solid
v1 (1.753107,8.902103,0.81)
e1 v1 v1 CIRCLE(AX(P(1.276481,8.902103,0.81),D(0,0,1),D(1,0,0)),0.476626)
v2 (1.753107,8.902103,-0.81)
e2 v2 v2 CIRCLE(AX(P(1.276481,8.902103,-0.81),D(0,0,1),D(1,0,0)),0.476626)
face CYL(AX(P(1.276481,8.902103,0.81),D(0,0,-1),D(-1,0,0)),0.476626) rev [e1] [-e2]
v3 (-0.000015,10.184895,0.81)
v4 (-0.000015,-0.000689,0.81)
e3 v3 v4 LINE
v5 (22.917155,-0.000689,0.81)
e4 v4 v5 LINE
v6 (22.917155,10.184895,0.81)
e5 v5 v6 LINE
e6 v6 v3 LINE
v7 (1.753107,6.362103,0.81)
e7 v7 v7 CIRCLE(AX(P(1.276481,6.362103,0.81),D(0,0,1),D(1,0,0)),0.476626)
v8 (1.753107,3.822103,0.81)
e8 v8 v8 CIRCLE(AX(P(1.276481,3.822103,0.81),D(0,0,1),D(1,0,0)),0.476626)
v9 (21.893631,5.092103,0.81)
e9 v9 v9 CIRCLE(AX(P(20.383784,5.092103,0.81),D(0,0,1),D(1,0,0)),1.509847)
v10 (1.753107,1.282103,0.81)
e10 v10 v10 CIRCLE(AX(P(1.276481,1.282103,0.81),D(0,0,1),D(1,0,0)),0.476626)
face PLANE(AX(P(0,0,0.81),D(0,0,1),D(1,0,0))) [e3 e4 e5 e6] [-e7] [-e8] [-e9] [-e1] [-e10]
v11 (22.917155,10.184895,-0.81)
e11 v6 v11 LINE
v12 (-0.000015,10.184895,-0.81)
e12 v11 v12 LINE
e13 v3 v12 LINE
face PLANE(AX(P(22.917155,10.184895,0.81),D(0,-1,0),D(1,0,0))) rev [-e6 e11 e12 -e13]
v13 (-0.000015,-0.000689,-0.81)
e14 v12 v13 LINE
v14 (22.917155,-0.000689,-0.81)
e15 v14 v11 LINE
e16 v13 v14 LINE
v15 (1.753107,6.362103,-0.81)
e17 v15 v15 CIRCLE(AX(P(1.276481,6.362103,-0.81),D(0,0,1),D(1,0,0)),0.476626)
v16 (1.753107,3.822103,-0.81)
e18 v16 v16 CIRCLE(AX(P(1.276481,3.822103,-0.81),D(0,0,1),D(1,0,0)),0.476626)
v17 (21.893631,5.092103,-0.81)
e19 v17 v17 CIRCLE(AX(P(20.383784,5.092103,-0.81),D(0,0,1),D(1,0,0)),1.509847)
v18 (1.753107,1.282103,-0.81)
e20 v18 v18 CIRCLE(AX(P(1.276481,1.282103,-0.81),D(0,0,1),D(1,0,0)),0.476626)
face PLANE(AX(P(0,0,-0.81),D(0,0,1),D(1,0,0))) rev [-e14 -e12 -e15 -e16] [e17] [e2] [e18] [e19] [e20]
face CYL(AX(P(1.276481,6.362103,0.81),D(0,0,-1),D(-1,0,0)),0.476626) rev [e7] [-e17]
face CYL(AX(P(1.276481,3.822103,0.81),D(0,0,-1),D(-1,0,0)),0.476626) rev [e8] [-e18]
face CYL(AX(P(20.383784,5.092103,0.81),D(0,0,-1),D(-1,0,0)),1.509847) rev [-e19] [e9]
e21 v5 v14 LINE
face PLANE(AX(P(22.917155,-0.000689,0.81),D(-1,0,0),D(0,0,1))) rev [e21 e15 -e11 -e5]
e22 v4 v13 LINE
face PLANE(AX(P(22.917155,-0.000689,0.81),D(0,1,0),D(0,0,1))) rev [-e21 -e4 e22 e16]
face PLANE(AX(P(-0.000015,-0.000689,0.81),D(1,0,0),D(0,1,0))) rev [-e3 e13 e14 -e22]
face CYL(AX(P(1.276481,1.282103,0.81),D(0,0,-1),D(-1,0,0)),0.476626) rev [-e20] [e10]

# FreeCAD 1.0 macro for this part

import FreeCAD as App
import Part
import Sketcher


def add_polygon(sketch, points):
    """Adds a closed chain of lines whose ends are joined by coincident constraints."""
    first, n = sketch.GeometryCount, len(points)
    for a, b in zip(points, points[1:] + points[:1]):
        sketch.addGeometry(Part.LineSegment(App.Vector(*a, 0), App.Vector(*b, 0)), False)
    for i in range(n):
        sketch.addConstraint(Sketcher.Constraint("Coincident", first + i, 2, first + (i + 1) % n, 1))

doc = App.newDocument("Part")
params = doc.addObject("Spreadsheet::Sheet", "Params")
for row, (alias, value) in enumerate([
    ("pad1_length", "1.62 mm"),
], start=1):
    params.set(f"A{row}", alias)
    params.set(f"B{row}", "=" + value)
    params.setAlias(f"B{row}", alias)

body = doc.addObject("PartDesign::Body", "Body")

# Sketch on XY plane
sketch1 = body.newObject("Sketcher::SketchObject", "Sketch")
sketch1.AttachmentSupport = (doc.getObject("XY_Plane"), [""])
sketch1.MapMode = "FlatFace"
add_polygon(sketch1, [(-0.000015, 10.184895), (-0.000015, -0.000689), (22.917155, -0.000689), (22.917155, 10.184895)])  # lines 0-3
sketch1.addGeometry(Part.Circle(App.Vector(1.276481, 1.282103, 0), App.Vector(0, 0, 1), 0.476626), False)  # 4
sketch1.addGeometry(Part.Circle(App.Vector(1.276481, 3.822103, 0), App.Vector(0, 0, 1), 0.476626), False)  # 5
sketch1.addGeometry(Part.Circle(App.Vector(1.276481, 6.362103, 0), App.Vector(0, 0, 1), 0.476626), False)  # 6
sketch1.addGeometry(Part.Circle(App.Vector(1.276481, 8.902103, 0), App.Vector(0, 0, 1), 0.476626), False)  # 7
sketch1.addGeometry(Part.Circle(App.Vector(20.383784, 5.092103, 0), App.Vector(0, 0, 1), 1.509847), False)  # 8
sketch1.addConstraint(Sketcher.Constraint("Vertical", 0))
sketch1.addConstraint(Sketcher.Constraint("Horizontal", 1))
sketch1.addConstraint(Sketcher.Constraint("Vertical", 2))
sketch1.addConstraint(Sketcher.Constraint("Horizontal", 3))
sketch1.addConstraint(Sketcher.Constraint("Equal", 4, 5))
sketch1.addConstraint(Sketcher.Constraint("Equal", 5, 6))
sketch1.addConstraint(Sketcher.Constraint("Equal", 6, 7))
sketch1.addConstraint(Sketcher.Constraint("Vertical", 4, 3, 5, 3))
sketch1.addConstraint(Sketcher.Constraint("Vertical", 5, 3, 6, 3))
sketch1.addConstraint(Sketcher.Constraint("Vertical", 6, 3, 7, 3))
sketch1.addConstraint(Sketcher.Constraint("Diameter", 4, 0.953251))
sketch1.addConstraint(Sketcher.Constraint("DistanceY", 4, 3, 5, 3, 2.54))
sketch1.addConstraint(Sketcher.Constraint("DistanceY", 5, 3, 6, 3, 2.54))
sketch1.addConstraint(Sketcher.Constraint("DistanceY", 6, 3, 7, 3, 2.54))
sketch1.addConstraint(Sketcher.Constraint("DistanceY", 5, 3, 8, 3, 1.27))
sketch1.addConstraint(Sketcher.Constraint("Diameter", 8, 3.019694))
sketch1.addConstraint(Sketcher.Constraint("DistanceX", 1, 1, 1, 2, 22.91717))
sketch1.addConstraint(Sketcher.Constraint("DistanceX", 0, 2, 8, 3, 20.383799))
sketch1.addConstraint(Sketcher.Constraint("DistanceY", 0, 2, 0, 1, 10.185584))
sketch1.addConstraint(Sketcher.Constraint("DistanceX", -1, 1, 4, 3, 1.276481))
sketch1.addConstraint(Sketcher.Constraint("DistanceY", 0, 2, -1, 1, 0.000689))
sketch1.addConstraint(Sketcher.Constraint("DistanceY", -1, 1, 4, 3, 1.282103))
sketch1.addConstraint(Sketcher.Constraint("DistanceX", -1, 1, 8, 3, 20.383784))
pad1 = body.newObject("PartDesign::Pad", "Pad")
pad1.Profile = sketch1
pad1.setExpression("Length", "Params.pad1_length")
pad1.Midplane = True

doc.recompute()
